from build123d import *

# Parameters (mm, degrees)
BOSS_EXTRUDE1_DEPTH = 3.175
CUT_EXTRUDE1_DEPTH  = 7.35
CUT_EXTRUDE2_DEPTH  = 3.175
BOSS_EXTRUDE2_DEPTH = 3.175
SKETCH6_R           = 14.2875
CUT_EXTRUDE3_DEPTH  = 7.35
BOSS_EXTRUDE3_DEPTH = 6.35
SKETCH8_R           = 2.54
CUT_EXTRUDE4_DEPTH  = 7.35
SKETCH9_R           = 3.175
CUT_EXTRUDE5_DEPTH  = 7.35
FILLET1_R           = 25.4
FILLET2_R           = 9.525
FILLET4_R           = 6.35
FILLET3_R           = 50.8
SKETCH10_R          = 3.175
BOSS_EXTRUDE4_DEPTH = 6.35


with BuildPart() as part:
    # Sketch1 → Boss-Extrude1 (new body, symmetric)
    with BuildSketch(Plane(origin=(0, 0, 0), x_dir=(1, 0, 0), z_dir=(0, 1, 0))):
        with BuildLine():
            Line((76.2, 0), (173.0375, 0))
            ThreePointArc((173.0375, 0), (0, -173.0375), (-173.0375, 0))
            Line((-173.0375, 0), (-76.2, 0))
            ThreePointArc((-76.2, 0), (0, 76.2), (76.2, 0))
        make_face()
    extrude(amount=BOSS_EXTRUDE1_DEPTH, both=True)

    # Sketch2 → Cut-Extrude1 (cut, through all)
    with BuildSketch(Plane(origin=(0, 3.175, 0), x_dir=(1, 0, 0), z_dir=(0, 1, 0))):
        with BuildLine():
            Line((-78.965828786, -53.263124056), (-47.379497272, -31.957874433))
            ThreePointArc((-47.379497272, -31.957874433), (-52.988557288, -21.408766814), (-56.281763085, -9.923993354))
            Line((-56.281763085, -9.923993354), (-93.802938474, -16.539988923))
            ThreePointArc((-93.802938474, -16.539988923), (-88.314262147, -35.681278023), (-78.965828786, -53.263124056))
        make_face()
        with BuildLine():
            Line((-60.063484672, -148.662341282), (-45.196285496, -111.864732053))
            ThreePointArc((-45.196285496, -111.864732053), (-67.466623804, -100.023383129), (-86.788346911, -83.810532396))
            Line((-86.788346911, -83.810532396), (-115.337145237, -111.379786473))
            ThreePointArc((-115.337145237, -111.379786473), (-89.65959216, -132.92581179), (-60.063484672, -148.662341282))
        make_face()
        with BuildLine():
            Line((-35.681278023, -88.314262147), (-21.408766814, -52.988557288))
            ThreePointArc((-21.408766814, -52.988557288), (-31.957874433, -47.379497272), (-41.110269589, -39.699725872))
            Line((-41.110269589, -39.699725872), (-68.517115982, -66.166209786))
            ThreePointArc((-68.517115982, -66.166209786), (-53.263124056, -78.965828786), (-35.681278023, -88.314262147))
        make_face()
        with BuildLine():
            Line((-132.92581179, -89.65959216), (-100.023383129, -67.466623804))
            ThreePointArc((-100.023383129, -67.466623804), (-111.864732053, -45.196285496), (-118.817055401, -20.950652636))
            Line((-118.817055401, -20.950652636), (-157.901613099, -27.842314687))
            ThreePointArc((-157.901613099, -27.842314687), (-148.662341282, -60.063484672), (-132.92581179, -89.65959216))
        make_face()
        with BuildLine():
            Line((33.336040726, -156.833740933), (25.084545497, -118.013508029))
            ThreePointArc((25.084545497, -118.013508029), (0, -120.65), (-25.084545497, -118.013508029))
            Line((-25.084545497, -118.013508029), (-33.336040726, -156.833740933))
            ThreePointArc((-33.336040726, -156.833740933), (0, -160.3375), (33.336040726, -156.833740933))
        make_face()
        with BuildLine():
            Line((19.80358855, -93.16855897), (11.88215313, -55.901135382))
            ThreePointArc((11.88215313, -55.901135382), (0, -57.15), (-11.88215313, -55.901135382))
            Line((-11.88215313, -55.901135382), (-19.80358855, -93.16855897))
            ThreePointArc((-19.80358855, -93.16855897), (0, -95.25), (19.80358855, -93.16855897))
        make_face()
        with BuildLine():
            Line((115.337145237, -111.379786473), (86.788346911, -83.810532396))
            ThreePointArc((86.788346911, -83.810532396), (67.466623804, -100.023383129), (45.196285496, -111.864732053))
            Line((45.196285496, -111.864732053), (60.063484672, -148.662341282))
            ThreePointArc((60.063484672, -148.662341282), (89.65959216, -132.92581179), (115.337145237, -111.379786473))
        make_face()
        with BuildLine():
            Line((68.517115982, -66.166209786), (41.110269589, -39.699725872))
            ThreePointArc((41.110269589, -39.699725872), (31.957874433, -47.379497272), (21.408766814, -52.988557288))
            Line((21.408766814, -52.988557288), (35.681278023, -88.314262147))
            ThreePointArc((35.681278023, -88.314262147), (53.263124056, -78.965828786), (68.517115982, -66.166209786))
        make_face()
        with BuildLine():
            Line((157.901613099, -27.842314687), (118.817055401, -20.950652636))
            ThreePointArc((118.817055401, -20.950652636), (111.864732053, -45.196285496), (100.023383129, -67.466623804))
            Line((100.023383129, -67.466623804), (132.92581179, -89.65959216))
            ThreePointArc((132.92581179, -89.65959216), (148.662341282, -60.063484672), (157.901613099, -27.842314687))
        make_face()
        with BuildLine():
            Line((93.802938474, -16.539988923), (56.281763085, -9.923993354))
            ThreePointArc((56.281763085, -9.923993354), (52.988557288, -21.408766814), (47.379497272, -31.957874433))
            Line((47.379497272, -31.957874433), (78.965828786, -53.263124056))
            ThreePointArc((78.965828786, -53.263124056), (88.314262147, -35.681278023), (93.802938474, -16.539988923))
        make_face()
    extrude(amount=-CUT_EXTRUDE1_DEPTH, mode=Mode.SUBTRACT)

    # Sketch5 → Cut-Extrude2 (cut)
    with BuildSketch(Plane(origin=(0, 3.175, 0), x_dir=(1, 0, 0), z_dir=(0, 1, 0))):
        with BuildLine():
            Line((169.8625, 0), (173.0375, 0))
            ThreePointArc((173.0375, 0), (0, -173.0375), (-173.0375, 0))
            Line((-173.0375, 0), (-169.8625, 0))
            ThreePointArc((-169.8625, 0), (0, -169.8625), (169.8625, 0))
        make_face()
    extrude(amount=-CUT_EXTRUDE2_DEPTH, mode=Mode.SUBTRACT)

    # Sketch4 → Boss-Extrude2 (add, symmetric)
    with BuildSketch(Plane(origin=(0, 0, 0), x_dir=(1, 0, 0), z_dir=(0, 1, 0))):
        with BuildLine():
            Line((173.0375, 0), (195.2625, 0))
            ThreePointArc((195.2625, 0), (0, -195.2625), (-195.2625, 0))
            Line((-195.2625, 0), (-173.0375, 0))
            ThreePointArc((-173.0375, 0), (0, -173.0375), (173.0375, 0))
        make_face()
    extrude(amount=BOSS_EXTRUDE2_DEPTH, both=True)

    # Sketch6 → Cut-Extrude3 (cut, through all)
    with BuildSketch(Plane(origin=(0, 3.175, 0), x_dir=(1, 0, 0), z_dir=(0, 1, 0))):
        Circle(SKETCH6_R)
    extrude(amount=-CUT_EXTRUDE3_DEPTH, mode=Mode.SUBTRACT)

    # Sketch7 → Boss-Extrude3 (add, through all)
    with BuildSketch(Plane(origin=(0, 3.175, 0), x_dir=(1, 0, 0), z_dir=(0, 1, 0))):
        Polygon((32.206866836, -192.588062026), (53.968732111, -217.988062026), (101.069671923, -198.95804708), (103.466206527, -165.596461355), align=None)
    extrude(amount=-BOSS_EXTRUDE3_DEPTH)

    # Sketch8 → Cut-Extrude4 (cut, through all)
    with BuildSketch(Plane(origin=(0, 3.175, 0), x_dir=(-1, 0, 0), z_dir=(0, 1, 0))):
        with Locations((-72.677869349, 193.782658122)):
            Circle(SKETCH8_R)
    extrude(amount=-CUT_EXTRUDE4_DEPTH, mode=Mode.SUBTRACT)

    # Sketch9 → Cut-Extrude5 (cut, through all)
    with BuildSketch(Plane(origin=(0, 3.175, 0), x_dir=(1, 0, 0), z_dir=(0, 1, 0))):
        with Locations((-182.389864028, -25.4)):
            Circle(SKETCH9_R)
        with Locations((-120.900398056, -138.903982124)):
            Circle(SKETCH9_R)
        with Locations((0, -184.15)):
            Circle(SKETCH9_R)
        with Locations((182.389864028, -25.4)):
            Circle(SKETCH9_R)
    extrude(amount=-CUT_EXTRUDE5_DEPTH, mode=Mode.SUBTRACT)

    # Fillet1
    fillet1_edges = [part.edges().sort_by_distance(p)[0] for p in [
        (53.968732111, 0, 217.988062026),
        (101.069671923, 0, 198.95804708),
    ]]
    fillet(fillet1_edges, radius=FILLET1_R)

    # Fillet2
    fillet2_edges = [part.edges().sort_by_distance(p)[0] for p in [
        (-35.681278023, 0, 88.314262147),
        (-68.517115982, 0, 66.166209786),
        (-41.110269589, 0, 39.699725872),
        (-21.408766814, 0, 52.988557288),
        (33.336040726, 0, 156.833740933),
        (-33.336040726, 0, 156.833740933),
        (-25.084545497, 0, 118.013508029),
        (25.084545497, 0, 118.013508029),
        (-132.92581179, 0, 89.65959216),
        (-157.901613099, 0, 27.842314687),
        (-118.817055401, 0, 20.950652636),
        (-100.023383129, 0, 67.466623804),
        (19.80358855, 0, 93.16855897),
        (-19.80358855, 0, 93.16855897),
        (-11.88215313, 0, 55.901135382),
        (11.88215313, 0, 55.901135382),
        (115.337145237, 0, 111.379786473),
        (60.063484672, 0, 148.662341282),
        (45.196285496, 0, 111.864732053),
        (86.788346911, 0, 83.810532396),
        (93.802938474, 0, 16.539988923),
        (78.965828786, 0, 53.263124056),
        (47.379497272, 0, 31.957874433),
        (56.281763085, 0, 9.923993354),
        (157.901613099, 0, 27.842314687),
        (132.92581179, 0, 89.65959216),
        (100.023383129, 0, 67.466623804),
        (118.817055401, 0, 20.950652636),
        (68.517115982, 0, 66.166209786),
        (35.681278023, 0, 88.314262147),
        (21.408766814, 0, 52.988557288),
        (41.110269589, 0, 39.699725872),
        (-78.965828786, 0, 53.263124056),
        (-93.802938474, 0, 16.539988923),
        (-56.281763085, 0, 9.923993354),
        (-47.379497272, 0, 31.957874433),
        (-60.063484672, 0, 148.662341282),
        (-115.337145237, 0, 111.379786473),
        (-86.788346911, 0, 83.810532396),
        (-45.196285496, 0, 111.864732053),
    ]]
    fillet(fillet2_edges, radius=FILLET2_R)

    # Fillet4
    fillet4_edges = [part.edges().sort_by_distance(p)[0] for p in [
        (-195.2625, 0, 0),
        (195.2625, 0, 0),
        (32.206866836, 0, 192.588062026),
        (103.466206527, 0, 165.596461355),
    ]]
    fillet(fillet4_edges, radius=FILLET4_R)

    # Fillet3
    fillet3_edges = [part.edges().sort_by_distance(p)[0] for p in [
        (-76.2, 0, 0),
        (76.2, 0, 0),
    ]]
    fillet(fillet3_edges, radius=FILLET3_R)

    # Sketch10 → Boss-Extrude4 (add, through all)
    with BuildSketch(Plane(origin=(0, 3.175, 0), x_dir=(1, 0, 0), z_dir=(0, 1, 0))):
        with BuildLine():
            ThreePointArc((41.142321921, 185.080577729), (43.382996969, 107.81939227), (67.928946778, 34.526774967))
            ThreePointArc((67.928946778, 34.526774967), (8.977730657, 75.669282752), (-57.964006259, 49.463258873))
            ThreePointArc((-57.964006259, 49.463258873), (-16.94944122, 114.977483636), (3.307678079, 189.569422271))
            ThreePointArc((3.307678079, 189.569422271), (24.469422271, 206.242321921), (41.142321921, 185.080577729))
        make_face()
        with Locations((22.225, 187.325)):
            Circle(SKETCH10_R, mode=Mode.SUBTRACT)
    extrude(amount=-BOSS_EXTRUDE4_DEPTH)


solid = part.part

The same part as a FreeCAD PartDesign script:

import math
import FreeCAD as App
import Part
import Sketcher
from FreeCAD import Vector
Q = App.Units.Quantity


def edges_at(feature, points):
    """Names of the edges that pass closest to the given points."""
    edges = feature.Shape.Edges
    near = lambda p: min(range(len(edges)), key=lambda i: edges[i].distToShape(Part.Vertex(*p))[0])
    return sorted({f"Edge{near(p) + 1}" for p in points})


def add_polygon(sketch, points):
    """Adds a closed chain of lines whose ends are joined by coincident constraints."""
    first, n = sketch.GeometryCount, len(points)
    for a, b in zip(points, points[1:] + points[:1]):
        sketch.addGeometry(Part.LineSegment(App.Vector(*a, 0), App.Vector(*b, 0)), False)
    for i in range(n):
        sketch.addConstraint(Sketcher.Constraint("Coincident", first + i, 2, first + (i + 1) % n, 1))

doc = App.newDocument("Part")
params = doc.addObject("Spreadsheet::Sheet", "Params")
for row, (alias, value) in enumerate([
    ("sketch1_radius", "3 in"),
    ("sketch1_radius2", "6.8125 in"),
    ("pad1_length", "0.25 in"),
    ("sketch2_radius", "2.25 in"),
    ("sketch2_radius2", "3.75 in"),
    ("sketch2_radius3", "4.75 in"),
    ("sketch2_radius4", "6.3125 in"),
    ("sketch3_radius", "6.6875 in"),
    ("sketch3_radius2", "6.8125 in"),
    ("pocket2_length", "0.125 in"),
    ("sketch4_radius", "6.8125 in"),
    ("sketch4_radius2", "7.6875 in"),
    ("pad2_length", "0.25 in"),
    ("sketch5_diameter", "1.125 in"),
    ("sketch6_length", "2 in"),
    ("sketch6_length2", "3 in"),
    ("pad3_length", "0.25 in"),
    ("sketch7_diameter", "0.2 in"),
    ("sketch8_diameter", "0.25 in"),
    ("fillet_radius", "1 in"),
    ("fillet2_radius", "0.375 in"),
    ("fillet3_radius", "0.25 in"),
    ("fillet4_radius", "2 in"),
    ("sketch9_radius", "3 in"),
    ("sketch9_diameter", "0.25 in"),
    ("sketch9_radius2", "0.75 in"),
    ("pad4_length", "0.25 in"),
], start=1):
    params.set(f"A{row}", alias)
    params.set(f"B{row}", "=" + value)
    params.setAlias(f"B{row}", alias)

body = doc.addObject("PartDesign::Body", "Body")

# Sketch on XZ plane
sketch1 = body.newObject("Sketcher::SketchObject", "Sketch")
sketch1.AttachmentSupport = (doc.getObject("XZ_Plane"), [""])
sketch1.MapMode = "FlatFace"
sketch1.addGeometry(Part.LineSegment(Vector(173, 0, 0), Vector(76, 0, 0)), False)
sketch1.addGeometry(Part.ArcOfCircle(Part.Circle(Vector(0, 0, 0), Vector(0, 0, 1), 76), math.radians(180), math.radians(360)), False)
sketch1.addGeometry(Part.LineSegment(Vector(-76, 0, 0), Vector(-173, 0, 0)), False)
sketch1.addGeometry(Part.ArcOfCircle(Part.Circle(Vector(0, 0, 0), Vector(0, 0, 1), 173), math.radians(0), math.radians(180)), False)
sketch1.addConstraint(Sketcher.Constraint("Coincident", 0, 2, 1, 2))
sketch1.addConstraint(Sketcher.Constraint("Coincident", 1, 1, 2, 1))
sketch1.addConstraint(Sketcher.Constraint("Coincident", 2, 2, 3, 2))
sketch1.addConstraint(Sketcher.Constraint("Coincident", 3, 1, 0, 1))
sketch1.addConstraint(Sketcher.Constraint("Horizontal", 0))
sketch1.addConstraint(Sketcher.Constraint("Horizontal", 2))
sketch1.addConstraint(Sketcher.Constraint("Coincident", 1, 3, -1, 1))
sketch1.addConstraint(Sketcher.Constraint("Coincident", 3, 3, -1, 1))
sketch1.addConstraint(Sketcher.Constraint("PointOnObject", 0, 2, -1))
sketch1.addConstraint(Sketcher.Constraint("PointOnObject", 1, 1, -1))
sketch1.addConstraint(Sketcher.Constraint("Radius", 1, Q("3 in")))
sketch1.addConstraint(Sketcher.Constraint("Radius", 3, Q("6.8125 in")))
sketch1.setExpression("Constraints[10]", "Params.sketch1_radius")
sketch1.setExpression("Constraints[11]", "Params.sketch1_radius2")
pad1 = body.newObject("PartDesign::Pad", "Pad")
pad1.Profile = sketch1
pad1.setExpression("Length", "Params.pad1_length")
pad1.Midplane = True

# Sketch on XZ plane
sketch2 = body.newObject("Sketcher::SketchObject", "Sketch001")
sketch2.AttachmentSupport = (doc.getObject("XZ_Plane"), [""])
sketch2.MapMode = "FlatFace"
sketch2.AttachmentOffset = App.Placement(Vector(0, 0, -0.125 * 25.4), App.Rotation())
sketch2.addGeometry(Part.LineSegment(Vector(-79, 53, 0), Vector(-47, 32, 0)), False)
sketch2.addGeometry(Part.ArcOfCircle(Part.Circle(Vector(0, 0, 0), Vector(0, 0, 1), 57), math.radians(146), math.radians(170)), False)
sketch2.addGeometry(Part.LineSegment(Vector(-56, 10, 0), Vector(-94, 17, 0)), False)
sketch2.addGeometry(Part.ArcOfCircle(Part.Circle(Vector(0, 0, 0), Vector(0, 0, 1), 95), math.radians(146), math.radians(170)), False)
sketch2.addGeometry(Part.LineSegment(Vector(-60, 149, 0), Vector(-45, 112, 0)), False)
sketch2.addGeometry(Part.ArcOfCircle(Part.Circle(Vector(0, 0, 0), Vector(0, 0, 1), 121), math.radians(112), math.radians(136)), False)
sketch2.addGeometry(Part.LineSegment(Vector(-87, 84, 0), Vector(-115, 111, 0)), False)
sketch2.addGeometry(Part.ArcOfCircle(Part.Circle(Vector(0, 0, 0), Vector(0, 0, 1), 160), math.radians(112), math.radians(136)), False)
sketch2.addGeometry(Part.LineSegment(Vector(-36, 88, 0), Vector(-21, 53, 0)), False)
sketch2.addGeometry(Part.ArcOfCircle(Part.Circle(Vector(0, 0, 0), Vector(0, 0, 1), 57), math.radians(112), math.radians(136)), False)
sketch2.addGeometry(Part.LineSegment(Vector(-41, 40, 0), Vector(-69, 66, 0)), False)
sketch2.addGeometry(Part.ArcOfCircle(Part.Circle(Vector(0, 0, 0), Vector(0, 0, 1), 95), math.radians(112), math.radians(136)), False)
sketch2.addGeometry(Part.LineSegment(Vector(-133, 90, 0), Vector(-100, 67, 0)), False)
sketch2.addGeometry(Part.ArcOfCircle(Part.Circle(Vector(0, 0, 0), Vector(0, 0, 1), 121), math.radians(146), math.radians(170)), False)
sketch2.addGeometry(Part.LineSegment(Vector(-119, 21, 0), Vector(-158, 28, 0)), False)
sketch2.addGeometry(Part.ArcOfCircle(Part.Circle(Vector(0, 0, 0), Vector(0, 0, 1), 160), math.radians(146), math.radians(170)), False)
sketch2.addGeometry(Part.LineSegment(Vector(33, 157, 0), Vector(25, 118, 0)), False)
sketch2.addGeometry(Part.ArcOfCircle(Part.Circle(Vector(0, 0, 0), Vector(0, 0, 1), 121), math.radians(78), math.radians(102)), False)
sketch2.addGeometry(Part.LineSegment(Vector(-25, 118, 0), Vector(-33, 157, 0)), False)
sketch2.addGeometry(Part.ArcOfCircle(Part.Circle(Vector(0, 0, 0), Vector(0, 0, 1), 160), math.radians(78), math.radians(102)), False)
sketch2.addGeometry(Part.LineSegment(Vector(20, 93, 0), Vector(12, 56, 0)), False)
sketch2.addGeometry(Part.ArcOfCircle(Part.Circle(Vector(0, 0, 0), Vector(0, 0, 1), 57), math.radians(78), math.radians(102)), False)
sketch2.addGeometry(Part.LineSegment(Vector(-12, 56, 0), Vector(-20, 93, 0)), False)
sketch2.addGeometry(Part.ArcOfCircle(Part.Circle(Vector(0, 0, 0), Vector(0, 0, 1), 95), math.radians(78), math.radians(102)), False)
sketch2.addGeometry(Part.LineSegment(Vector(115, 111, 0), Vector(87, 84, 0)), False)
sketch2.addGeometry(Part.ArcOfCircle(Part.Circle(Vector(0, 0, 0), Vector(0, 0, 1), 121), math.radians(44), math.radians(68)), False)
sketch2.addGeometry(Part.LineSegment(Vector(45, 112, 0), Vector(60, 149, 0)), False)
sketch2.addGeometry(Part.ArcOfCircle(Part.Circle(Vector(0, 0, 0), Vector(0, 0, 1), 160), math.radians(44), math.radians(68)), False)
sketch2.addGeometry(Part.LineSegment(Vector(69, 66, 0), Vector(41, 40, 0)), False)
sketch2.addGeometry(Part.ArcOfCircle(Part.Circle(Vector(0, 0, 0), Vector(0, 0, 1), 57), math.radians(44), math.radians(68)), False)
sketch2.addGeometry(Part.LineSegment(Vector(21, 53, 0), Vector(36, 88, 0)), False)
sketch2.addGeometry(Part.ArcOfCircle(Part.Circle(Vector(0, 0, 0), Vector(0, 0, 1), 95), math.radians(44), math.radians(68)), False)
sketch2.addGeometry(Part.LineSegment(Vector(158, 28, 0), Vector(119, 21, 0)), False)
sketch2.addGeometry(Part.ArcOfCircle(Part.Circle(Vector(0, 0, 0), Vector(0, 0, 1), 121), math.radians(10), math.radians(34)), False)
sketch2.addGeometry(Part.LineSegment(Vector(100, 67, 0), Vector(133, 90, 0)), False)
sketch2.addGeometry(Part.ArcOfCircle(Part.Circle(Vector(0, 0, 0), Vector(0, 0, 1), 160), math.radians(10), math.radians(34)), False)
sketch2.addGeometry(Part.LineSegment(Vector(94, 17, 0), Vector(56, 10, 0)), False)
sketch2.addGeometry(Part.ArcOfCircle(Part.Circle(Vector(0, 0, 0), Vector(0, 0, 1), 57), math.radians(10), math.radians(34)), False)
sketch2.addGeometry(Part.LineSegment(Vector(47, 32, 0), Vector(79, 53, 0)), False)
sketch2.addGeometry(Part.ArcOfCircle(Part.Circle(Vector(0, 0, 0), Vector(0, 0, 1), 95), math.radians(10), math.radians(34)), False)
sketch2.addConstraint(Sketcher.Constraint("Coincident", 0, 2, 1, 1))
sketch2.addConstraint(Sketcher.Constraint("Coincident", 1, 2, 2, 1))
sketch2.addConstraint(Sketcher.Constraint("Coincident", 2, 2, 3, 2))
sketch2.addConstraint(Sketcher.Constraint("Coincident", 3, 1, 0, 1))
sketch2.addConstraint(Sketcher.Constraint("Coincident", 4, 2, 5, 1))
sketch2.addConstraint(Sketcher.Constraint("Coincident", 5, 2, 6, 1))
sketch2.addConstraint(Sketcher.Constraint("Coincident", 6, 2, 7, 2))
sketch2.addConstraint(Sketcher.Constraint("Coincident", 7, 1, 4, 1))
sketch2.addConstraint(Sketcher.Constraint("Coincident", 8, 2, 9, 1))
sketch2.addConstraint(Sketcher.Constraint("Coincident", 9, 2, 10, 1))
sketch2.addConstraint(Sketcher.Constraint("Coincident", 10, 2, 11, 2))
sketch2.addConstraint(Sketcher.Constraint("Coincident", 11, 1, 8, 1))
sketch2.addConstraint(Sketcher.Constraint("Coincident", 12, 2, 13, 1))
sketch2.addConstraint(Sketcher.Constraint("Coincident", 13, 2, 14, 1))
sketch2.addConstraint(Sketcher.Constraint("Coincident", 14, 2, 15, 2))
sketch2.addConstraint(Sketcher.Constraint("Coincident", 15, 1, 12, 1))
sketch2.addConstraint(Sketcher.Constraint("Coincident", 16, 2, 17, 1))
sketch2.addConstraint(Sketcher.Constraint("Coincident", 17, 2, 18, 1))
sketch2.addConstraint(Sketcher.Constraint("Coincident", 18, 2, 19, 2))
sketch2.addConstraint(Sketcher.Constraint("Coincident", 19, 1, 16, 1))
sketch2.addConstraint(Sketcher.Constraint("Coincident", 20, 2, 21, 1))
sketch2.addConstraint(Sketcher.Constraint("Coincident", 21, 2, 22, 1))
sketch2.addConstraint(Sketcher.Constraint("Coincident", 22, 2, 23, 2))
sketch2.addConstraint(Sketcher.Constraint("Coincident", 23, 1, 20, 1))
sketch2.addConstraint(Sketcher.Constraint("Coincident", 24, 2, 25, 1))
sketch2.addConstraint(Sketcher.Constraint("Coincident", 25, 2, 26, 1))
sketch2.addConstraint(Sketcher.Constraint("Coincident", 26, 2, 27, 2))
sketch2.addConstraint(Sketcher.Constraint("Coincident", 27, 1, 24, 1))
sketch2.addConstraint(Sketcher.Constraint("Coincident", 28, 2, 29, 1))
sketch2.addConstraint(Sketcher.Constraint("Coincident", 29, 2, 30, 1))
sketch2.addConstraint(Sketcher.Constraint("Coincident", 30, 2, 31, 2))
sketch2.addConstraint(Sketcher.Constraint("Coincident", 31, 1, 28, 1))
sketch2.addConstraint(Sketcher.Constraint("Coincident", 32, 2, 33, 1))
sketch2.addConstraint(Sketcher.Constraint("Coincident", 33, 2, 34, 1))
sketch2.addConstraint(Sketcher.Constraint("Coincident", 34, 2, 35, 2))
sketch2.addConstraint(Sketcher.Constraint("Coincident", 35, 1, 32, 1))
sketch2.addConstraint(Sketcher.Constraint("Coincident", 36, 2, 37, 1))
sketch2.addConstraint(Sketcher.Constraint("Coincident", 37, 2, 38, 1))
sketch2.addConstraint(Sketcher.Constraint("Coincident", 38, 2, 39, 2))
sketch2.addConstraint(Sketcher.Constraint("Coincident", 39, 1, 36, 1))
sketch2.addConstraint(Sketcher.Constraint("Coincident", 1, 3, -1, 1))
sketch2.addConstraint(Sketcher.Constraint("Coincident", 3, 3, -1, 1))
sketch2.addConstraint(Sketcher.Constraint("Coincident", 5, 3, -1, 1))
sketch2.addConstraint(Sketcher.Constraint("Coincident", 7, 3, -1, 1))
sketch2.addConstraint(Sketcher.Constraint("Coincident", 9, 3, -1, 1))
sketch2.addConstraint(Sketcher.Constraint("Coincident", 11, 3, -1, 1))
sketch2.addConstraint(Sketcher.Constraint("Coincident", 13, 3, -1, 1))
sketch2.addConstraint(Sketcher.Constraint("Coincident", 15, 3, -1, 1))
sketch2.addConstraint(Sketcher.Constraint("Coincident", 17, 3, -1, 1))
sketch2.addConstraint(Sketcher.Constraint("Coincident", 19, 3, -1, 1))
sketch2.addConstraint(Sketcher.Constraint("Coincident", 21, 3, -1, 1))
sketch2.addConstraint(Sketcher.Constraint("Coincident", 23, 3, -1, 1))
sketch2.addConstraint(Sketcher.Constraint("Coincident", 25, 3, -1, 1))
sketch2.addConstraint(Sketcher.Constraint("Coincident", 27, 3, -1, 1))
sketch2.addConstraint(Sketcher.Constraint("Coincident", 29, 3, -1, 1))
sketch2.addConstraint(Sketcher.Constraint("Coincident", 31, 3, -1, 1))
sketch2.addConstraint(Sketcher.Constraint("Coincident", 33, 3, -1, 1))
sketch2.addConstraint(Sketcher.Constraint("Coincident", 35, 3, -1, 1))
sketch2.addConstraint(Sketcher.Constraint("Coincident", 37, 3, -1, 1))
sketch2.addConstraint(Sketcher.Constraint("Coincident", 39, 3, -1, 1))
sketch2.addConstraint(Sketcher.Constraint("Equal", 1, 9))
sketch2.addConstraint(Sketcher.Constraint("Equal", 3, 11))
sketch2.addConstraint(Sketcher.Constraint("Equal", 5, 13))
sketch2.addConstraint(Sketcher.Constraint("Equal", 7, 15))
sketch2.addConstraint(Sketcher.Constraint("Equal", 13, 17))
sketch2.addConstraint(Sketcher.Constraint("Equal", 15, 19))
sketch2.addConstraint(Sketcher.Constraint("Equal", 9, 21))
sketch2.addConstraint(Sketcher.Constraint("Equal", 11, 23))
sketch2.addConstraint(Sketcher.Constraint("Equal", 17, 25))
sketch2.addConstraint(Sketcher.Constraint("Equal", 19, 27))
sketch2.addConstraint(Sketcher.Constraint("Equal", 21, 29))
sketch2.addConstraint(Sketcher.Constraint("Equal", 23, 31))
sketch2.addConstraint(Sketcher.Constraint("Equal", 25, 33))
sketch2.addConstraint(Sketcher.Constraint("Equal", 27, 35))
sketch2.addConstraint(Sketcher.Constraint("Equal", 29, 37))
sketch2.addConstraint(Sketcher.Constraint("Equal", 31, 39))
sketch2.addConstraint(Sketcher.Constraint("Parallel", 4, 8))
sketch2.addConstraint(Sketcher.Constraint("Parallel", 6, 10))
sketch2.addConstraint(Sketcher.Constraint("Parallel", 0, 12))
sketch2.addConstraint(Sketcher.Constraint("Parallel", 2, 14))
sketch2.addConstraint(Sketcher.Constraint("Parallel", 16, 20))
sketch2.addConstraint(Sketcher.Constraint("Parallel", 18, 22))
sketch2.addConstraint(Sketcher.Constraint("Parallel", 24, 28))
sketch2.addConstraint(Sketcher.Constraint("Parallel", 26, 30))
sketch2.addConstraint(Sketcher.Constraint("Parallel", 32, 36))
sketch2.addConstraint(Sketcher.Constraint("Parallel", 34, 38))
sketch2.addConstraint(Sketcher.Constraint("Horizontal", 16, 2, 17, 2))
sketch2.addConstraint(Sketcher.Constraint("Horizontal", 18, 2, 19, 1))
sketch2.addConstraint(Sketcher.Constraint("Horizontal", 20, 2, 21, 2))
sketch2.addConstraint(Sketcher.Constraint("Horizontal", 5, 2, 24, 2))
sketch2.addConstraint(Sketcher.Constraint("Horizontal", 4, 2, 25, 2))
sketch2.addConstraint(Sketcher.Constraint("Horizontal", 7, 1, 26, 2))
sketch2.addConstraint(Sketcher.Constraint("Horizontal", 6, 2, 27, 1))
sketch2.addConstraint(Sketcher.Constraint("Horizontal", 9, 2, 28, 2))
sketch2.addConstraint(Sketcher.Constraint("Horizontal", 8, 2, 29, 2))
sketch2.addConstraint(Sketcher.Constraint("Horizontal", 13, 2, 32, 2))
sketch2.addConstraint(Sketcher.Constraint("Horizontal", 12, 2, 33, 2))
sketch2.addConstraint(Sketcher.Constraint("Horizontal", 15, 1, 34, 2))
sketch2.addConstraint(Sketcher.Constraint("Horizontal", 14, 2, 35, 1))
sketch2.addConstraint(Sketcher.Constraint("Horizontal", 1, 2, 36, 2))
sketch2.addConstraint(Sketcher.Constraint("Horizontal", 0, 2, 37, 2))
sketch2.addConstraint(Sketcher.Constraint("Radius", 1, Q("2.25 in")))
sketch2.addConstraint(Sketcher.Constraint("Radius", 3, Q("3.75 in")))
sketch2.addConstraint(Sketcher.Constraint("Radius", 5, Q("4.75 in")))
sketch2.addConstraint(Sketcher.Constraint("Angle", 0, Q("-34 deg")))
sketch2.addConstraint(Sketcher.Constraint("Angle", 2, Q("170 deg")))
sketch2.addConstraint(Sketcher.Constraint("Angle", 4, Q("-68 deg")))
sketch2.addConstraint(Sketcher.Constraint("Angle", 6, Q("136 deg")))
sketch2.addConstraint(Sketcher.Constraint("Angle", 16, Q("-102 deg")))
sketch2.addConstraint(Sketcher.Constraint("Radius", 7, Q("6.3125 in")))
sketch2.addConstraint(Sketcher.Constraint("DistanceY", 5, 2, 4, 2, 28.0542))
sketch2.addConstraint(Sketcher.Constraint("DistanceY", 9, 2, 3, 1, 13.563398))
sketch2.addConstraint(Sketcher.Constraint("DistanceY", 3, 1, 12, 2, 14.2035))
sketch2.addConstraint(Sketcher.Constraint("DistanceY", 7, 1, 18, 2, 8.1714))
sketch2.addConstraint(Sketcher.Constraint("DistanceY", 8, 2, 22, 2, 40.180002))
sketch2.addConstraint(Sketcher.Constraint("DistanceX", 16, 2, 24, 2, 61.703801))
sketch2.addConstraint(Sketcher.Constraint("DistanceX", 21, 2, 24, 2, 98.6705))
sketch2.addConstraint(Sketcher.Constraint("DistanceX", 34, 2, 35, 1, 24.975801))
sketch2.addConstraint(Sketcher.Constraint("DistanceX", 2, 2, -1, 1, 93.802938))
sketch2.addConstraint(Sketcher.Constraint("DistanceX", 9, 2, -1, 1, 41.11027))
sketch2.setExpression("Constraints[101]", "Params.sketch2_radius")
sketch2.setExpression("Constraints[102]", "Params.sketch2_radius2")
sketch2.setExpression("Constraints[103]", "Params.sketch2_radius3")
sketch2.setExpression("Constraints[109]", "Params.sketch2_radius4")
pocket1 = body.newObject("PartDesign::Pocket", "Pocket")
pocket1.Profile = sketch2
pocket1.Type = "ThroughAll"
pocket1.Reversed = True

# Sketch on XZ plane
sketch3 = body.newObject("Sketcher::SketchObject", "Sketch002")
sketch3.AttachmentSupport = (doc.getObject("XZ_Plane"), [""])
sketch3.MapMode = "FlatFace"
sketch3.AttachmentOffset = App.Placement(Vector(0, 0, -0.125 * 25.4), App.Rotation())
sketch3.addGeometry(Part.LineSegment(Vector(173, 0, 0), Vector(169.9, 0, 0)), False)
sketch3.addGeometry(Part.ArcOfCircle(Part.Circle(Vector(0, 0, 0), Vector(0, 0, 1), 169.9), math.radians(0), math.radians(180)), False)
sketch3.addGeometry(Part.LineSegment(Vector(-169.9, 0, 0), Vector(-173, 0, 0)), False)
sketch3.addGeometry(Part.ArcOfCircle(Part.Circle(Vector(0, 0, 0), Vector(0, 0, 1), 173), math.radians(0), math.radians(180)), False)
sketch3.addConstraint(Sketcher.Constraint("Coincident", 0, 2, 1, 1))
sketch3.addConstraint(Sketcher.Constraint("Coincident", 1, 2, 2, 1))
sketch3.addConstraint(Sketcher.Constraint("Coincident", 2, 2, 3, 2))
sketch3.addConstraint(Sketcher.Constraint("Coincident", 3, 1, 0, 1))
sketch3.addConstraint(Sketcher.Constraint("Horizontal", 0))
sketch3.addConstraint(Sketcher.Constraint("Horizontal", 2))
sketch3.addConstraint(Sketcher.Constraint("Coincident", 1, 3, -1, 1))
sketch3.addConstraint(Sketcher.Constraint("Coincident", 3, 3, -1, 1))
sketch3.addConstraint(Sketcher.Constraint("PointOnObject", 0, 2, -1))
sketch3.addConstraint(Sketcher.Constraint("PointOnObject", 1, 2, -1))
sketch3.addConstraint(Sketcher.Constraint("Radius", 1, Q("6.6875 in")))
sketch3.addConstraint(Sketcher.Constraint("Radius", 3, Q("6.8125 in")))
sketch3.setExpression("Constraints[10]", "Params.sketch3_radius")
sketch3.setExpression("Constraints[11]", "Params.sketch3_radius2")
pocket2 = body.newObject("PartDesign::Pocket", "Pocket001")
pocket2.Profile = sketch3
pocket2.setExpression("Length", "Params.pocket2_length")
pocket2.Reversed = True

# Sketch on XZ plane
sketch4 = body.newObject("Sketcher::SketchObject", "Sketch003")
sketch4.AttachmentSupport = (doc.getObject("XZ_Plane"), [""])
sketch4.MapMode = "FlatFace"
sketch4.addGeometry(Part.LineSegment(Vector(195, 0, 0), Vector(173, 0, 0)), False)
sketch4.addGeometry(Part.ArcOfCircle(Part.Circle(Vector(0, 0, 0), Vector(0, 0, 1), 173), math.radians(0), math.radians(180)), False)
sketch4.addGeometry(Part.LineSegment(Vector(-173, 0, 0), Vector(-195, 0, 0)), False)
sketch4.addGeometry(Part.ArcOfCircle(Part.Circle(Vector(0, 0, 0), Vector(0, 0, 1), 195), math.radians(0), math.radians(180)), False)
sketch4.addConstraint(Sketcher.Constraint("Coincident", 0, 2, 1, 1))
sketch4.addConstraint(Sketcher.Constraint("Coincident", 1, 2, 2, 1))
sketch4.addConstraint(Sketcher.Constraint("Coincident", 2, 2, 3, 2))
sketch4.addConstraint(Sketcher.Constraint("Coincident", 3, 1, 0, 1))
sketch4.addConstraint(Sketcher.Constraint("Horizontal", 0))
sketch4.addConstraint(Sketcher.Constraint("Horizontal", 2))
sketch4.addConstraint(Sketcher.Constraint("Coincident", 1, 3, -1, 1))
sketch4.addConstraint(Sketcher.Constraint("Coincident", 3, 3, -1, 1))
sketch4.addConstraint(Sketcher.Constraint("PointOnObject", 0, 2, -1))
sketch4.addConstraint(Sketcher.Constraint("PointOnObject", 1, 2, -1))
sketch4.addConstraint(Sketcher.Constraint("Radius", 1, Q("6.8125 in")))
sketch4.addConstraint(Sketcher.Constraint("Radius", 3, Q("7.6875 in")))
sketch4.setExpression("Constraints[10]", "Params.sketch4_radius")
sketch4.setExpression("Constraints[11]", "Params.sketch4_radius2")
pad2 = body.newObject("PartDesign::Pad", "Pad001")
pad2.Profile = sketch4
pad2.setExpression("Length", "Params.pad2_length")
pad2.Midplane = True

# Sketch on XZ plane
sketch5 = body.newObject("Sketcher::SketchObject", "Sketch004")
sketch5.AttachmentSupport = (doc.getObject("XZ_Plane"), [""])
sketch5.MapMode = "FlatFace"
sketch5.AttachmentOffset = App.Placement(Vector(0, 0, -0.125 * 25.4), App.Rotation())
sketch5.addGeometry(Part.Circle(Vector(0, 0, 0), Vector(0, 0, 1), 14), False)
sketch5.addConstraint(Sketcher.Constraint("Coincident", 0, 3, -1, 1))
sketch5.addConstraint(Sketcher.Constraint("Diameter", 0, Q("1.125 in")))
sketch5.setExpression("Constraints[1]", "Params.sketch5_diameter")
pocket3 = body.newObject("PartDesign::Pocket", "Pocket002")
pocket3.Profile = sketch5
pocket3.Type = "ThroughAll"
pocket3.Reversed = True

# Sketch on XZ plane
sketch6 = body.newObject("Sketcher::SketchObject", "Sketch005")
sketch6.AttachmentSupport = (doc.getObject("XZ_Plane"), [""])
sketch6.MapMode = "FlatFace"
sketch6.AttachmentOffset = App.Placement(Vector(0, 0, -0.125 * 25.4), App.Rotation())
add_polygon(sketch6, [(32, 193), (54, 218), (101, 199), (103, 166)])  # lines 0-3
sketch6.addConstraint(Sketcher.Constraint("Equal", 0, 2))
sketch6.addConstraint(Sketcher.Constraint("Distance", 1, Q("2 in")))
sketch6.addConstraint(Sketcher.Constraint("Distance", 3, Q("3 in")))
sketch6.addConstraint(Sketcher.Constraint("Angle", 1, Q("-22 deg")))
sketch6.addConstraint(Sketcher.Constraint("DistanceY", 3, 2, 0, 2, Q("1 in")))
sketch6.addConstraint(Sketcher.Constraint("DistanceY", 2, 2, 0, 2, 52.391601))
sketch6.addConstraint(Sketcher.Constraint("DistanceX", -1, 1, 1, 2, 101.069672))
sketch6.addConstraint(Sketcher.Constraint("DistanceY", -1, 1, 2, 2, 165.596461))
sketch6.setExpression("Constraints[5]", "Params.sketch6_length")
sketch6.setExpression("Constraints[6]", "Params.sketch6_length2")
pad3 = body.newObject("PartDesign::Pad", "Pad002")
pad3.Profile = sketch6
pad3.setExpression("Length", "Params.pad3_length")

# Sketch on XZ plane
sketch7 = body.newObject("Sketcher::SketchObject", "Sketch006")
sketch7.AttachmentSupport = (doc.getObject("XZ_Plane"), [""])
sketch7.MapMode = "FlatFace"
sketch7.AttachmentOffset = App.Placement(Vector(0, 0, -0.125 * 25.4), App.Rotation())
sketch7.addGeometry(Part.Circle(Vector(72.7, 193.8, 0), Vector(0, 0, 1), 2.5), False)
sketch7.addConstraint(Sketcher.Constraint("Diameter", 0, Q("0.2 in")))
sketch7.addConstraint(Sketcher.Constraint("DistanceX", -1, 1, 0, 3, 72.677869))
sketch7.addConstraint(Sketcher.Constraint("DistanceY", -1, 1, 0, 3, 193.782658))
sketch7.setExpression("Constraints[0]", "Params.sketch7_diameter")
pocket4 = body.newObject("PartDesign::Pocket", "Pocket003")
pocket4.Profile = sketch7
pocket4.Type = "ThroughAll"
pocket4.Reversed = True

# Sketch on XZ plane
sketch8 = body.newObject("Sketcher::SketchObject", "Sketch007")
sketch8.AttachmentSupport = (doc.getObject("XZ_Plane"), [""])
sketch8.MapMode = "FlatFace"
sketch8.AttachmentOffset = App.Placement(Vector(0, 0, -0.125 * 25.4), App.Rotation())
sketch8.addGeometry(Part.Circle(Vector(-182.4, 25.4, 0), Vector(0, 0, 1), 3.2), False)
sketch8.addGeometry(Part.Circle(Vector(-120.9, 138.9, 0), Vector(0, 0, 1), 3.2), False)
sketch8.addGeometry(Part.Circle(Vector(0, 184.2, 0), Vector(0, 0, 1), 3.2), False)
sketch8.addGeometry(Part.Circle(Vector(182.4, 25.4, 0), Vector(0, 0, 1), 3.2), False)
sketch8.addConstraint(Sketcher.Constraint("Equal", 0, 1))
sketch8.addConstraint(Sketcher.Constraint("Equal", 1, 2))
sketch8.addConstraint(Sketcher.Constraint("Equal", 2, 3))
sketch8.addConstraint(Sketcher.Constraint("Symmetric", 0, 3, 3, 3, -2))
sketch8.addConstraint(Sketcher.Constraint("PointOnObject", 2, 3, -2))
sketch8.addConstraint(Sketcher.Constraint("Diameter", 0, Q("0.25 in")))
sketch8.addConstraint(Sketcher.Constraint("DistanceY", -1, 1, 0, 3, Q("1 in")))
sketch8.addConstraint(Sketcher.Constraint("DistanceY", -1, 1, 2, 3, Q("7.25 in")))
sketch8.addConstraint(Sketcher.Constraint("DistanceX", 1, 3, -1, 1, 120.900398))
sketch8.addConstraint(Sketcher.Constraint("DistanceX", 0, 3, 3, 3, 364.779728))
sketch8.addConstraint(Sketcher.Constraint("DistanceY", -1, 1, 1, 3, 138.903982))
sketch8.setExpression("Constraints[5]", "Params.sketch8_diameter")
pocket5 = body.newObject("PartDesign::Pocket", "Pocket004")
pocket5.Profile = sketch8
pocket5.Type = "ThroughAll"
pocket5.Reversed = True
doc.recompute()

fillet = body.newObject("PartDesign::Fillet", "Fillet")
fillet.Base = (pocket5, edges_at(pocket5, [(53.969, 0, 217.988), (101.07, 0, 198.958)]))
fillet.setExpression("Radius", "Params.fillet_radius")
doc.recompute()

fillet2 = body.newObject("PartDesign::Fillet", "Fillet001")
fillet2.Base = (fillet, edges_at(fillet, [
    (-35.681, 0, 88.314),
    (-68.517, 0, 66.166),
    (-41.11, 0, 39.7),
    (-21.409, 0, 52.989),
    (33.336, 0, 156.834),
    (-33.336, 0, 156.834),
    (-25.085, 0, 118.014),
    (25.085, 0, 118.014),
    (-132.926, 0, 89.66),
    (-157.902, 0, 27.842),
    (-118.817, 0, 20.951),
    (-100.023, 0, 67.467),
    (19.804, 0, 93.169),
    (-19.804, 0, 93.169),
    (-11.882, 0, 55.901),
    (11.882, 0, 55.901),
    (115.337, 0, 111.38),
    (60.063, 0, 148.662),
    (45.196, 0, 111.865),
    (86.788, 0, 83.811),
    (93.803, 0, 16.54),
    (78.966, 0, 53.263),
    (47.379, 0, 31.958),
    (56.282, 0, 9.924),
    (157.902, 0, 27.842),
    (132.926, 0, 89.66),
    (100.023, 0, 67.467),
    (118.817, 0, 20.951),
    (68.517, 0, 66.166),
    (35.681, 0, 88.314),
    (21.409, 0, 52.989),
    (41.11, 0, 39.7),
    (-78.966, 0, 53.263),
    (-93.803, 0, 16.54),
    (-56.282, 0, 9.924),
    (-47.379, 0, 31.958),
    (-60.063, 0, 148.662),
    (-115.337, 0, 111.38),
    (-86.788, 0, 83.811),
    (-45.196, 0, 111.865),
]))
fillet2.setExpression("Radius", "Params.fillet2_radius")
doc.recompute()

fillet3 = body.newObject("PartDesign::Fillet", "Fillet002")
fillet3.Base = (fillet2, edges_at(fillet2, [
    (-195.262, 0, 0),
    (195.262, 0, 0),
    (32.207, 0, 192.588),
    (103.466, 0, 165.596),
]))
fillet3.setExpression("Radius", "Params.fillet3_radius")
doc.recompute()

fillet4 = body.newObject("PartDesign::Fillet", "Fillet003")
fillet4.Base = (fillet3, edges_at(fillet3, [(-76.2, 0, 0), (76.2, 0, 0)]))
fillet4.setExpression("Radius", "Params.fillet4_radius")

# Sketch on XZ plane
sketch9 = body.newObject("Sketcher::SketchObject", "Sketch008")
sketch9.AttachmentSupport = (doc.getObject("XZ_Plane"), [""])
sketch9.MapMode = "FlatFace"
sketch9.AttachmentOffset = App.Placement(Vector(0, 0, -0.125 * 25.4), App.Rotation())
sketch9.addGeometry(Part.ArcOfCircle(Part.Circle(Vector(303, -154, 0), Vector(0, 0, 1), 263.7), math.radians(153), math.radians(187)), False)
sketch9.addGeometry(Part.ArcOfCircle(Part.Circle(Vector(22.2, -187.3, 0), Vector(0, 0, 1), 19.1), math.radians(-173), math.radians(7)), False)
sketch9.addGeometry(Part.ArcOfCircle(Part.Circle(Vector(-258.6, -220.6, 0), Vector(0, 0, 1), 263.7), math.radians(7), math.radians(40)), False)
sketch9.addGeometry(Part.ArcOfCircle(Part.Circle(Vector(0, 0, 0), Vector(0, 0, 1), 76.2), math.radians(-140), math.radians(-27)), False)
sketch9.addGeometry(Part.Circle(Vector(22.2, -187.3, 0), Vector(0, 0, 1), 3.2), False)
sketch9.addConstraint(Sketcher.Constraint("Tangent", 0, 2, 1, 2))
sketch9.addConstraint(Sketcher.Constraint("Tangent", 1, 1, 2, 1))
sketch9.addConstraint(Sketcher.Constraint("Tangent", 2, 2, 3, 1))
sketch9.addConstraint(Sketcher.Constraint("Tangent", 3, 2, 0, 1))
sketch9.addConstraint(Sketcher.Constraint("Coincident", 3, 3, -1, 1))
sketch9.addConstraint(Sketcher.Constraint("Coincident", 4, 3, 1, 3))
sketch9.addConstraint(Sketcher.Constraint("Radius", 3, Q("3 in")))
sketch9.addConstraint(Sketcher.Constraint("Diameter", 4, Q("0.25 in")))
sketch9.addConstraint(Sketcher.Constraint("Radius", 1, Q("0.75 in")))
sketch9.addConstraint(Sketcher.Constraint("DistanceX", -1, 1, 1, 3, Q("0.875 in")))
sketch9.addConstraint(Sketcher.Constraint("DistanceY", 1, 3, -1, 1, Q("7.375 in")))
sketch9.addConstraint(Sketcher.Constraint("Radius", 0, 263.701669))
sketch9.addConstraint(Sketcher.Constraint("Radius", 2, 263.701109))
sketch9.setExpression("Constraints[6]", "Params.sketch9_radius")
sketch9.setExpression("Constraints[7]", "Params.sketch9_diameter")
sketch9.setExpression("Constraints[8]", "Params.sketch9_radius2")
pad4 = body.newObject("PartDesign::Pad", "Pad003")
pad4.Profile = sketch9
pad4.setExpression("Length", "Params.pad4_length")

doc.recompute()
